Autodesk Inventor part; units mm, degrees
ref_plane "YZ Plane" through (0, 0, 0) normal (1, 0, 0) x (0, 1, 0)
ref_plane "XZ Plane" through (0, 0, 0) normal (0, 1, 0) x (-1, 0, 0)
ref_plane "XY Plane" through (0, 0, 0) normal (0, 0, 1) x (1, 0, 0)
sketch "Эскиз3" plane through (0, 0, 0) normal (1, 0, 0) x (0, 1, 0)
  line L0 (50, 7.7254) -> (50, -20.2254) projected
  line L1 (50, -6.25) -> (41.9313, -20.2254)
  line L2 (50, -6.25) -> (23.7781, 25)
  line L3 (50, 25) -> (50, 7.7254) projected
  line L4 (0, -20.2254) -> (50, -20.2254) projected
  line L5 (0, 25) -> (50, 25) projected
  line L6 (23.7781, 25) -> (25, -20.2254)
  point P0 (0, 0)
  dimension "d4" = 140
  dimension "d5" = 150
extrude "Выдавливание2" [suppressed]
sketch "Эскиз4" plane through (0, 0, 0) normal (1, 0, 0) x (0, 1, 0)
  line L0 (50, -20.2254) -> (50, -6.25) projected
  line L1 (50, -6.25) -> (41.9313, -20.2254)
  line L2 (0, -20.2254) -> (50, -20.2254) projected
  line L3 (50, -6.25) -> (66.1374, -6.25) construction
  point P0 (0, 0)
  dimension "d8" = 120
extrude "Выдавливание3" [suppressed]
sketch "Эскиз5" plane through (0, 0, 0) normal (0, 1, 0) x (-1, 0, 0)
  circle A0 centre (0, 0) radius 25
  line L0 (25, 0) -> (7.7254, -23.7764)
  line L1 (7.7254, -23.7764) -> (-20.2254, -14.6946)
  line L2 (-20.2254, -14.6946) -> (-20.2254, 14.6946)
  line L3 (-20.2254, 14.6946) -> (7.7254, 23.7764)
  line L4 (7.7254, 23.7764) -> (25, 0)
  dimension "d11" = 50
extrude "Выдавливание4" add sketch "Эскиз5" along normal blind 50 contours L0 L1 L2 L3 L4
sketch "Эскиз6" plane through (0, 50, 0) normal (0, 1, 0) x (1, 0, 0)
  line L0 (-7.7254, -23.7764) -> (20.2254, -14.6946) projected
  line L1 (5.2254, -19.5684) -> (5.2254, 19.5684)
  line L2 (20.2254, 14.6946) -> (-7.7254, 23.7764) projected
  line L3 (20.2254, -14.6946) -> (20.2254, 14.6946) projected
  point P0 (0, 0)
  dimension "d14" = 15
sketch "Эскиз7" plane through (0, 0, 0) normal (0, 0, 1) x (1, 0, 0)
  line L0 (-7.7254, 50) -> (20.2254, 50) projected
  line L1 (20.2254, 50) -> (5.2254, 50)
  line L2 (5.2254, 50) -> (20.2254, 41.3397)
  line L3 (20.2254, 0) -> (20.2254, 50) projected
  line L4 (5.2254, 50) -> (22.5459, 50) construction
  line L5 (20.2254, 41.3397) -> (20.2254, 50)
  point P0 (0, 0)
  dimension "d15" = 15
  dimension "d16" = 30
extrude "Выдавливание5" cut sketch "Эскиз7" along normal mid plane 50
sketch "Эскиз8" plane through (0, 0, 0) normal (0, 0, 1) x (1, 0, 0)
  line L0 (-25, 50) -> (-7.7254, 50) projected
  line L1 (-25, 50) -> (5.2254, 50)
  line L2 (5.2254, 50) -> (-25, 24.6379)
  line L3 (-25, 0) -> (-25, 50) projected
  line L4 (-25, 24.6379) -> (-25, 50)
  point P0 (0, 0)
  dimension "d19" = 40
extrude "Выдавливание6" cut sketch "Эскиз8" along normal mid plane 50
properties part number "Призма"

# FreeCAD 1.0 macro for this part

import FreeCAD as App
import Part
import Sketcher

V = App.Vector
Q = App.Units.Quantity

doc = App.newDocument("Part")
params = doc.addObject("Spreadsheet::Sheet", "Params")
for row, (alias, value) in enumerate([
    ("pad1_length", "50 mm"),
    ("sketch2_width", "15 mm"),
    ("pocket1_length", "50 mm"),
    ("pocket2_length", "50 mm"),
], start=1):
    params.set(f"A{row}", alias)
    params.set(f"B{row}", "=" + value)
    params.setAlias(f"B{row}", alias)

body = doc.addObject("PartDesign::Body", "Body")

sketch1 = body.newObject("Sketcher::SketchObject", "Sketch")
sketch1.AttachmentSupport = (doc.getObject("XZ_Plane"), [""])
sketch1.MapMode = "FlatFace"
sketch1.addGeometry([
    Part.LineSegment(V(-8, -24, 0), V(-25, 0, 0)),
    Part.LineSegment(V(-25, 0, 0), V(-8, 24, 0)),
    Part.LineSegment(V(-8, 24, 0), V(20, 15, 0)),
    Part.LineSegment(V(20, 15, 0), V(20, -15, 0)),
    Part.LineSegment(V(20, -15, 0), V(-8, -24, 0)),
], False)
sketch1.addConstraint([
    Sketcher.Constraint("Coincident", 0, 2, 1, 1),
    Sketcher.Constraint("Coincident", 1, 2, 2, 1),
    Sketcher.Constraint("Coincident", 2, 2, 3, 1),
    Sketcher.Constraint("Coincident", 3, 2, 4, 1),
    Sketcher.Constraint("Coincident", 4, 2, 0, 1),
    Sketcher.Constraint("Vertical", 3),
    Sketcher.Constraint("Symmetric", 1, 2, 4, 2, -1),
    Sketcher.Constraint("PointOnObject", 0, 2, -1),
    Sketcher.Constraint("Equal", 1, 2),
    Sketcher.Constraint("Equal", 2, 4),
    Sketcher.Constraint("Angle", 0, Q("126 deg")),
    Sketcher.Constraint("Angle", 2, Q("-18 deg")),
    Sketcher.Constraint("DistanceX", 0, 2, -1, 1, Q("25 mm")),
    Sketcher.Constraint("DistanceY", 3, 2, 3, 1, Q("29.3892 mm")),
])
pad1 = body.newObject("PartDesign::Pad", "Pad")
pad1.Profile = sketch1
pad1.setExpression("Length", "Params.pad1_length")
pad1.Reversed = True

sketch2 = body.newObject("Sketcher::SketchObject", "Sketch001")
sketch2.AttachmentSupport = (doc.getObject("XY_Plane"), [""])
sketch2.MapMode = "FlatFace"
sketch2.addGeometry([
    Part.LineSegment(V(20, 50, 0), V(5, 50, 0)),
    Part.LineSegment(V(5, 50, 0), V(20, 41, 0)),
    Part.LineSegment(V(20, 41, 0), V(20, 50, 0)),
], False)
sketch2.addConstraint([
    Sketcher.Constraint("Coincident", 0, 2, 1, 1),
    Sketcher.Constraint("Coincident", 1, 2, 2, 1),
    Sketcher.Constraint("Coincident", 2, 2, 0, 1),
    Sketcher.Constraint("Horizontal", 0),
    Sketcher.Constraint("Vertical", 2),
    Sketcher.Constraint("DistanceX", 0, 2, 0, 1, Q("15 mm")),
    Sketcher.Constraint("Angle", 1, Q("-30.0001 deg")),
    Sketcher.Constraint("DistanceY", -1, 1, 0, 2, Q("50 mm")),
    Sketcher.Constraint("DistanceX", -1, 1, 0, 2, Q("5.2254 mm")),
])
sketch2.setExpression("Constraints[5]", "Params.sketch2_width")
pocket1 = body.newObject("PartDesign::Pocket", "Pocket")
pocket1.Profile = sketch2
pocket1.setExpression("Length", "Params.pocket1_length")
pocket1.Midplane = True

sketch3 = body.newObject("Sketcher::SketchObject", "Sketch002")
sketch3.AttachmentSupport = (doc.getObject("XY_Plane"), [""])
sketch3.MapMode = "FlatFace"
sketch3.addGeometry([
    Part.LineSegment(V(5, 50, 0), V(-25, 50, 0)),
    Part.LineSegment(V(-25, 50, 0), V(-25, 25, 0)),
    Part.LineSegment(V(-25, 25, 0), V(5, 50, 0)),
], False)
sketch3.addConstraint([
    Sketcher.Constraint("Coincident", 0, 2, 1, 1),
    Sketcher.Constraint("Coincident", 1, 2, 2, 1),
    Sketcher.Constraint("Coincident", 2, 2, 0, 1),
    Sketcher.Constraint("Horizontal", 0),
    Sketcher.Constraint("Vertical", 1),
    Sketcher.Constraint("Angle", 2, Q("40 deg")),
    Sketcher.Constraint("DistanceX", 0, 2, -1, 1, Q("25 mm")),
    Sketcher.Constraint("DistanceY", -1, 1, 0, 2, Q("50 mm")),
    Sketcher.Constraint("DistanceY", 1, 2, 1, 1, Q("25.362 mm")),
])
pocket2 = body.newObject("PartDesign::Pocket", "Pocket001")
pocket2.Profile = sketch3
pocket2.setExpression("Length", "Params.pocket2_length")
pocket2.Midplane = True

doc.recompute()
